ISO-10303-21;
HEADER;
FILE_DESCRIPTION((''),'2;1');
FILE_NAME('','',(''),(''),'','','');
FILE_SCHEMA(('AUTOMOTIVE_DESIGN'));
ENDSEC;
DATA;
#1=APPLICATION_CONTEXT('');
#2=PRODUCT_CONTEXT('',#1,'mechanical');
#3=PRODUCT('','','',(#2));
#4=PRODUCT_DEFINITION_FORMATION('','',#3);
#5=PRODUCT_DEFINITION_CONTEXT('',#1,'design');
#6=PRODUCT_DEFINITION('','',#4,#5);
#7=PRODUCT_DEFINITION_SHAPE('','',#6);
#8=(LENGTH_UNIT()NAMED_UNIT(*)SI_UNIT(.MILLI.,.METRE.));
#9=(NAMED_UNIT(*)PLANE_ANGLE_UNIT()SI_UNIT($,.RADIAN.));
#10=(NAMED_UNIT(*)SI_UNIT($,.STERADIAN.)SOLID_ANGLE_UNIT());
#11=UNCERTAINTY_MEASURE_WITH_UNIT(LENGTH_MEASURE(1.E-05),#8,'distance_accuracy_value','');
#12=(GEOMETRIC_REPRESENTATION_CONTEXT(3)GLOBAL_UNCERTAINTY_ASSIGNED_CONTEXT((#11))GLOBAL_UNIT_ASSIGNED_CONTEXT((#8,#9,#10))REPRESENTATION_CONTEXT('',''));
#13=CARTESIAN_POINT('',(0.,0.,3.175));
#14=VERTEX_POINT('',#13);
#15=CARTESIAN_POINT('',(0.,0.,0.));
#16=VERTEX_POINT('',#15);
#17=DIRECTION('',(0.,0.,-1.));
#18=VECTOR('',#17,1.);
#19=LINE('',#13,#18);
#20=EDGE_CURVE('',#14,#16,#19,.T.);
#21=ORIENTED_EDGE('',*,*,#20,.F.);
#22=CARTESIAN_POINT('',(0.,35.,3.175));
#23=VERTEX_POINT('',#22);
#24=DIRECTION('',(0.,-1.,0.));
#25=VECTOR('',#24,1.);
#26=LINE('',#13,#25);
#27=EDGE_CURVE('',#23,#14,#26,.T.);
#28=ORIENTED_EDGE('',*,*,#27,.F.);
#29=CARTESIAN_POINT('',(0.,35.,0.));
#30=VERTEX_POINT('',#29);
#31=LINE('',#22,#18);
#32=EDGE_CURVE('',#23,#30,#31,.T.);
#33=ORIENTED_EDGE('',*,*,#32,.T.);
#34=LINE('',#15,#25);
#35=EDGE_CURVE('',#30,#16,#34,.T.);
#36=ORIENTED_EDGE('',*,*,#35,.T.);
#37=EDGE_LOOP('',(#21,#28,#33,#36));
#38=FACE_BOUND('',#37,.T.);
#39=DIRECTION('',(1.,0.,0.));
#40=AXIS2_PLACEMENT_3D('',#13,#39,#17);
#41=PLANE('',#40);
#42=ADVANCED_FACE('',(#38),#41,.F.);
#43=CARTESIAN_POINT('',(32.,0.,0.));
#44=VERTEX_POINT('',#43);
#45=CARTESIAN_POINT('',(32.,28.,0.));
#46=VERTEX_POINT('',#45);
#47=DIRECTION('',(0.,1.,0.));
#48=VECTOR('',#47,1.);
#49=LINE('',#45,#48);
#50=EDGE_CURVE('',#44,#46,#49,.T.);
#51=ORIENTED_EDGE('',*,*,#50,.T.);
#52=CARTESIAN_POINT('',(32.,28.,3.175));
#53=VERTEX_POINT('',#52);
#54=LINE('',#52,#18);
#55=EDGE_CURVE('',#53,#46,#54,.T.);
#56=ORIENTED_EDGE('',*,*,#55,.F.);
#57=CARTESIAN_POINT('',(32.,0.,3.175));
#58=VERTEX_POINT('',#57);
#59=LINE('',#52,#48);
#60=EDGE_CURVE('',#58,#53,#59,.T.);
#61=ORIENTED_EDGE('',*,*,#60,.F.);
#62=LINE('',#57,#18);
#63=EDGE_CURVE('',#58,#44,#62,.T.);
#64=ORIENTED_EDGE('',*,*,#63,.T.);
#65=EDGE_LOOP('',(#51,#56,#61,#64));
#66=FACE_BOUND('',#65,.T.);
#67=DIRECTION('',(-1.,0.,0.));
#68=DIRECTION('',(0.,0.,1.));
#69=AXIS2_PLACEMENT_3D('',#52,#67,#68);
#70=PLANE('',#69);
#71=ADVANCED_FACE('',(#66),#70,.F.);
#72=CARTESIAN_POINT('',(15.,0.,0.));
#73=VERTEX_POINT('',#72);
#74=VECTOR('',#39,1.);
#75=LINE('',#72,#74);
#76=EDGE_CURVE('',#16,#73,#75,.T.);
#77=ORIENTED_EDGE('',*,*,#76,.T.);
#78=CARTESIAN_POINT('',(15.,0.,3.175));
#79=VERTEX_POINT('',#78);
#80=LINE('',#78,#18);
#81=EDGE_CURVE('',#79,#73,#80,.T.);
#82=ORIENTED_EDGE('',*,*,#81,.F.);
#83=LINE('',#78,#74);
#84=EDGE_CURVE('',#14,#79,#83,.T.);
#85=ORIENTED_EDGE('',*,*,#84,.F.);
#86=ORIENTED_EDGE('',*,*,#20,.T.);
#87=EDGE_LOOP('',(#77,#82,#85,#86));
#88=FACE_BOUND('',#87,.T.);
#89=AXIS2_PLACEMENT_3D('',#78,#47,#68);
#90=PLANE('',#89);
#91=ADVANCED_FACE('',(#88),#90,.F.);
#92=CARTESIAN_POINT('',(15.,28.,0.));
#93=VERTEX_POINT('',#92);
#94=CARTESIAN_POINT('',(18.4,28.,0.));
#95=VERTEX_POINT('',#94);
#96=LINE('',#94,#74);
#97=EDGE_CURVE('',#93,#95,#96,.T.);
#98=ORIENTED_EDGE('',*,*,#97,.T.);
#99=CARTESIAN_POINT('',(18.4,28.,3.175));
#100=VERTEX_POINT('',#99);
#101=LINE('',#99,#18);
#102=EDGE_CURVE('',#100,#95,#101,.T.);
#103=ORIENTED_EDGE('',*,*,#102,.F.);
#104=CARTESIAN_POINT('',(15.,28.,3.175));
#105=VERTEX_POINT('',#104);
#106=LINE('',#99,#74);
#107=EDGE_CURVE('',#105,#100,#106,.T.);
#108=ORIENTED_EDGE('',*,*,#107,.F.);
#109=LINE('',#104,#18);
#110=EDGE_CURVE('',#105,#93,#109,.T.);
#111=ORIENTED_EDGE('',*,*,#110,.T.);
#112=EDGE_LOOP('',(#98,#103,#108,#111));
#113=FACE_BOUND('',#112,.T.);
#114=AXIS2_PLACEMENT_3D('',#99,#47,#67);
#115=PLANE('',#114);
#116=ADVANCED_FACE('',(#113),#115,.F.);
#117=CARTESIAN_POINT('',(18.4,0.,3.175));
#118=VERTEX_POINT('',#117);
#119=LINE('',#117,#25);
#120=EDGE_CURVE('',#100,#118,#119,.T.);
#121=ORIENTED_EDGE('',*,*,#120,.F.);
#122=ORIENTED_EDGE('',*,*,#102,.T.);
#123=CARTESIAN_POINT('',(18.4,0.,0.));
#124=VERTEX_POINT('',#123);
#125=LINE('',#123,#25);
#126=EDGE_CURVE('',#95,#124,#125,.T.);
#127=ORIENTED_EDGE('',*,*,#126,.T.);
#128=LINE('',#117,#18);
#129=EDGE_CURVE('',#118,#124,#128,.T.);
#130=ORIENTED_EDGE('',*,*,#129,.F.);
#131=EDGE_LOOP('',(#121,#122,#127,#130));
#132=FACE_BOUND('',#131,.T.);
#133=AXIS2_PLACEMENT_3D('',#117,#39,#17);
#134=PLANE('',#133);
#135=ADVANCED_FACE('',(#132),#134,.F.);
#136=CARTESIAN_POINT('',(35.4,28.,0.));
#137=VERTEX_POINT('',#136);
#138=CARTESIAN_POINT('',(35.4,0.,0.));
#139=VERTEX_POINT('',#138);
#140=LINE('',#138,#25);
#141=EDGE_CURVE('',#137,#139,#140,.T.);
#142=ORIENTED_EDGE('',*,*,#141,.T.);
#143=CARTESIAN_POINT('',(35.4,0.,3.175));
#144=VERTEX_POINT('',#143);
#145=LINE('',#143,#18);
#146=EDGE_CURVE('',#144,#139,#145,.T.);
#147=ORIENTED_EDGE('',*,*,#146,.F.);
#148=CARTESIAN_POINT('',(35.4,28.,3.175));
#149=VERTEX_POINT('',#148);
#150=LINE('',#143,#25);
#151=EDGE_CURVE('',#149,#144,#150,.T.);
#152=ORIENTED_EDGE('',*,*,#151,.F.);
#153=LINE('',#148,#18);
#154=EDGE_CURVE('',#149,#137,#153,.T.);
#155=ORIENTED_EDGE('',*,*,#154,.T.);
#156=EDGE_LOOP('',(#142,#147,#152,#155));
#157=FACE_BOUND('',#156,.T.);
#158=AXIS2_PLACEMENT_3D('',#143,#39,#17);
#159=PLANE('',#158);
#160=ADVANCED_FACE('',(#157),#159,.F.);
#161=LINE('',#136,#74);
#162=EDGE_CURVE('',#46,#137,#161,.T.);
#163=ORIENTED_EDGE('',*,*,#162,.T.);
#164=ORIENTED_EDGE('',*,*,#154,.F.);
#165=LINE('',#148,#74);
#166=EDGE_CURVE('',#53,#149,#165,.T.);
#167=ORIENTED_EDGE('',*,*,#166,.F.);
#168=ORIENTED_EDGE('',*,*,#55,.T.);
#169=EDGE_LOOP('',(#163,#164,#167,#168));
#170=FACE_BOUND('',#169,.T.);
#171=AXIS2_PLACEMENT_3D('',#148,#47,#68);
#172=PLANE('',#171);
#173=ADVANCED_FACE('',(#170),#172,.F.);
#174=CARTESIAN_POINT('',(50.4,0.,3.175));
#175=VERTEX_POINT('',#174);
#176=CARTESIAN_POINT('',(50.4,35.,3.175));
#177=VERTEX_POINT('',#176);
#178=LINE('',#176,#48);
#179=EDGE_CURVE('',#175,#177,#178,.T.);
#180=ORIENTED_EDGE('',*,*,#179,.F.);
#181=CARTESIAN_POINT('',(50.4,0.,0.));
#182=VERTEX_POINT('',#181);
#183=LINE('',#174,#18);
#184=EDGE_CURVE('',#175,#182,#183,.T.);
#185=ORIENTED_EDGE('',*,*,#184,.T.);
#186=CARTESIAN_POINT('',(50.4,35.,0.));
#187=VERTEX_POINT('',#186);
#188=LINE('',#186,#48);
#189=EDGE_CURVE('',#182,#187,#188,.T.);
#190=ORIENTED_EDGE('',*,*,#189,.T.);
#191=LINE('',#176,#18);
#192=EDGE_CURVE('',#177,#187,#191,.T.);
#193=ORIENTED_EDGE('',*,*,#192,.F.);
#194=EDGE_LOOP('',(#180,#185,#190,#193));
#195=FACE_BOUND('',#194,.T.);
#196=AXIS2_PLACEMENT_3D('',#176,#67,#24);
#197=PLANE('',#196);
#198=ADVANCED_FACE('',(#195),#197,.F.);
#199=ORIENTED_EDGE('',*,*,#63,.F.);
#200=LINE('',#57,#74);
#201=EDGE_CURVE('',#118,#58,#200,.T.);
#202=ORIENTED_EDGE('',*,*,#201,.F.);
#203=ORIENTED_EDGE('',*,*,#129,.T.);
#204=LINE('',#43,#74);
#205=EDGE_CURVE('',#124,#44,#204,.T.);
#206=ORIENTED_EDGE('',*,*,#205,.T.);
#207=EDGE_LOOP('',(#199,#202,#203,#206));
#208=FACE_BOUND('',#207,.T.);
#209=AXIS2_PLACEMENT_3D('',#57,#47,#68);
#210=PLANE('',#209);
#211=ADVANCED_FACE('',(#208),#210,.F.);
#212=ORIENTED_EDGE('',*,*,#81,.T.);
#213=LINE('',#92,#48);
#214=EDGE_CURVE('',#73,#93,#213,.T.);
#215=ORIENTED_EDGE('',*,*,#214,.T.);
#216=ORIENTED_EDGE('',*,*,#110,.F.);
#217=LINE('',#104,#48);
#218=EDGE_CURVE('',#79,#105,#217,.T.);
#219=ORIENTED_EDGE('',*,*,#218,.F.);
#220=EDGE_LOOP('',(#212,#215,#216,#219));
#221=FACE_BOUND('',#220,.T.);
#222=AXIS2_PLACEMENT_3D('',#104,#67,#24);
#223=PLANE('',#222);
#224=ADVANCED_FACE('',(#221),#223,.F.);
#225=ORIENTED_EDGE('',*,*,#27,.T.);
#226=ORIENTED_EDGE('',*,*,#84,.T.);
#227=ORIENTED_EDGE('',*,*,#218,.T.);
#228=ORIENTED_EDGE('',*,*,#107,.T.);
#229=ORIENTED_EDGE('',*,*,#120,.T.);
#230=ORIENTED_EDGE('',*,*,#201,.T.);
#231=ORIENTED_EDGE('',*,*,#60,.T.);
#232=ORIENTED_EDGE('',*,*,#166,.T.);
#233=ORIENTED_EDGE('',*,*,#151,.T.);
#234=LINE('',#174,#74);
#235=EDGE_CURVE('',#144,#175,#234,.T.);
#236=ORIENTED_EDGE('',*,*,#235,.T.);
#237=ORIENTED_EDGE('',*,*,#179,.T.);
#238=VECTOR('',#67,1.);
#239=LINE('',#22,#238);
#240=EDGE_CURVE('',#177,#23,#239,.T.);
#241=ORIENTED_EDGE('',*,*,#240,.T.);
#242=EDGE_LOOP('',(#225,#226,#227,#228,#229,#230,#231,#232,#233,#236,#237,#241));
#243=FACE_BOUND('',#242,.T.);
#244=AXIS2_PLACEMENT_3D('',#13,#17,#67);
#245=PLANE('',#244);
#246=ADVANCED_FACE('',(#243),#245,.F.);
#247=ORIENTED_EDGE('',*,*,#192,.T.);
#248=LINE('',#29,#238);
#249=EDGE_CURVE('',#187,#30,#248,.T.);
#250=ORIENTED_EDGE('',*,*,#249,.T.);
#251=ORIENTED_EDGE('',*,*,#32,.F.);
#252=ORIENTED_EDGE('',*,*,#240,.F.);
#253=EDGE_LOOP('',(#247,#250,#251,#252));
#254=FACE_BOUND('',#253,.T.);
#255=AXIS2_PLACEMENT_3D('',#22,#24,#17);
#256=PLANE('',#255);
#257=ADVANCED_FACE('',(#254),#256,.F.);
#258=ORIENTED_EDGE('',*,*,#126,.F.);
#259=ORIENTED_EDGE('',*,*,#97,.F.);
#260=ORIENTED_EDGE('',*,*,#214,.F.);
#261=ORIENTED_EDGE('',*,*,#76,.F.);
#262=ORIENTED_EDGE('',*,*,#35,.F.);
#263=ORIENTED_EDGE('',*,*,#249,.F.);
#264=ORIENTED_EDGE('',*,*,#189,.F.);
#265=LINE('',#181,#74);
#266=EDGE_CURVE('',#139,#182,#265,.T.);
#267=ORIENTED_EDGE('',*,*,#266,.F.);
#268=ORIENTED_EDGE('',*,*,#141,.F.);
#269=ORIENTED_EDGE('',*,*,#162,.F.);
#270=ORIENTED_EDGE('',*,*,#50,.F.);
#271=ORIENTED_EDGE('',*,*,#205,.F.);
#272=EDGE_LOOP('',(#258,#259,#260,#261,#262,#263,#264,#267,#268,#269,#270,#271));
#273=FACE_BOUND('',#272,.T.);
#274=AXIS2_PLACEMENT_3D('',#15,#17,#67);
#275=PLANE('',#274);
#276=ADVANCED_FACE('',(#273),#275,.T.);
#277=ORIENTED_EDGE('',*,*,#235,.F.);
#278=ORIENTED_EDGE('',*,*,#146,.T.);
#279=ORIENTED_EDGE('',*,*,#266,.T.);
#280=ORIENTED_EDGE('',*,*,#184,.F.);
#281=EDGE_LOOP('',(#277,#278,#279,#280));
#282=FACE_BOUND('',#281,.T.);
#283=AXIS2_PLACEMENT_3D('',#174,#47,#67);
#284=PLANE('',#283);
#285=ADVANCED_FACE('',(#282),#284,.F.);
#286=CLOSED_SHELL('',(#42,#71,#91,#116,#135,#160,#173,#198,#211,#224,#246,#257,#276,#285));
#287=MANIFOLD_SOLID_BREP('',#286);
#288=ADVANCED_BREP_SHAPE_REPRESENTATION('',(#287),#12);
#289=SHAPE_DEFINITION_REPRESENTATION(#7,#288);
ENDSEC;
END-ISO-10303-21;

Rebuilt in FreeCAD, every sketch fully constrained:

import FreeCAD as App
import Part
import Sketcher
from FreeCAD import Vector
Q = App.Units.Quantity

doc = App.newDocument("Part")
params = doc.addObject("Spreadsheet::Sheet", "Params")
for row, (alias, value) in enumerate([
    ("sketch1_width", "15 mm"),
    ("sketch1_height", "35 mm"),
    ("sketch1_height2", "28 mm"),
    ("sketch1_width2", "3.4 mm"),
    ("sketch1_width3", "13.6 mm"),
    ("pad1_length", "3.175 mm"),
], start=1):
    params.set(f"A{row}", alias)
    params.set(f"B{row}", "=" + value)
    params.setAlias(f"B{row}", alias)

body = doc.addObject("PartDesign::Body", "Body")

# Sketch on XY plane
sketch1 = body.newObject("Sketcher::SketchObject", "Sketch")
sketch1.AttachmentSupport = (doc.getObject("XY_Plane"), [""])
sketch1.MapMode = "FlatFace"
sketch1.addGeometry(Part.LineSegment(Vector(0, 35, 0), Vector(0, 0, 0)), False)
sketch1.addGeometry(Part.LineSegment(Vector(0, 0, 0), Vector(15, 0, 0)), False)
sketch1.addGeometry(Part.LineSegment(Vector(15, 0, 0), Vector(15, 28, 0)), False)
sketch1.addGeometry(Part.LineSegment(Vector(15, 28, 0), Vector(18.4, 28, 0)), False)
sketch1.addGeometry(Part.LineSegment(Vector(18.4, 28, 0), Vector(18.4, 0, 0)), False)
sketch1.addGeometry(Part.LineSegment(Vector(18.4, 0, 0), Vector(32, 0, 0)), False)
sketch1.addGeometry(Part.LineSegment(Vector(32, 0, 0), Vector(32, 28, 0)), False)
sketch1.addGeometry(Part.LineSegment(Vector(32, 28, 0), Vector(35.4, 28, 0)), False)
sketch1.addGeometry(Part.LineSegment(Vector(35.4, 28, 0), Vector(35.4, 0, 0)), False)
sketch1.addGeometry(Part.LineSegment(Vector(35.4, 0, 0), Vector(50.4, 0, 0)), False)
sketch1.addGeometry(Part.LineSegment(Vector(50.4, 0, 0), Vector(50.4, 35, 0)), False)
sketch1.addGeometry(Part.LineSegment(Vector(50.4, 35, 0), Vector(0, 35, 0)), False)
sketch1.addConstraint(Sketcher.Constraint("Coincident", 0, 2, 1, 1))
sketch1.addConstraint(Sketcher.Constraint("Coincident", 1, 2, 2, 1))
sketch1.addConstraint(Sketcher.Constraint("Coincident", 2, 2, 3, 1))
sketch1.addConstraint(Sketcher.Constraint("Coincident", 3, 2, 4, 1))
sketch1.addConstraint(Sketcher.Constraint("Coincident", 4, 2, 5, 1))
sketch1.addConstraint(Sketcher.Constraint("Coincident", 5, 2, 6, 1))
sketch1.addConstraint(Sketcher.Constraint("Coincident", 6, 2, 7, 1))
sketch1.addConstraint(Sketcher.Constraint("Coincident", 7, 2, 8, 1))
sketch1.addConstraint(Sketcher.Constraint("Coincident", 8, 2, 9, 1))
sketch1.addConstraint(Sketcher.Constraint("Coincident", 9, 2, 10, 1))
sketch1.addConstraint(Sketcher.Constraint("Coincident", 10, 2, 11, 1))
sketch1.addConstraint(Sketcher.Constraint("Coincident", 11, 2, 0, 1))
sketch1.addConstraint(Sketcher.Constraint("Vertical", 0))
sketch1.addConstraint(Sketcher.Constraint("Horizontal", 1))
sketch1.addConstraint(Sketcher.Constraint("Vertical", 2))
sketch1.addConstraint(Sketcher.Constraint("Horizontal", 3))
sketch1.addConstraint(Sketcher.Constraint("Vertical", 4))
sketch1.addConstraint(Sketcher.Constraint("Horizontal", 5))
sketch1.addConstraint(Sketcher.Constraint("Vertical", 6))
sketch1.addConstraint(Sketcher.Constraint("Horizontal", 7))
sketch1.addConstraint(Sketcher.Constraint("Vertical", 8))
sketch1.addConstraint(Sketcher.Constraint("Horizontal", 9))
sketch1.addConstraint(Sketcher.Constraint("Vertical", 10))
sketch1.addConstraint(Sketcher.Constraint("Horizontal", 11))
sketch1.addConstraint(Sketcher.Constraint("Coincident", 0, 2, -1, 1))
sketch1.addConstraint(Sketcher.Constraint("PointOnObject", 4, 2, -1))
sketch1.addConstraint(Sketcher.Constraint("PointOnObject", 8, 2, -1))
sketch1.addConstraint(Sketcher.Constraint("Horizontal", 3, 2, 6, 2))
sketch1.addConstraint(Sketcher.Constraint("Equal", 3, 7))
sketch1.addConstraint(Sketcher.Constraint("Equal", 1, 9))
sketch1.addConstraint(Sketcher.Constraint("DistanceX", 1, 1, 1, 2, Q("15 mm")))
sketch1.addConstraint(Sketcher.Constraint("DistanceY", 0, 2, 0, 1, Q("35 mm")))
sketch1.addConstraint(Sketcher.Constraint("DistanceY", 2, 1, 2, 2, Q("28 mm")))
sketch1.addConstraint(Sketcher.Constraint("DistanceX", 3, 1, 3, 2, Q("3.4 mm")))
sketch1.addConstraint(Sketcher.Constraint("DistanceX", 5, 1, 5, 2, Q("13.6 mm")))
sketch1.setExpression("Constraints[30]", "Params.sketch1_width")
sketch1.setExpression("Constraints[31]", "Params.sketch1_height")
sketch1.setExpression("Constraints[32]", "Params.sketch1_height2")
sketch1.setExpression("Constraints[33]", "Params.sketch1_width2")
sketch1.setExpression("Constraints[34]", "Params.sketch1_width3")
pad1 = body.newObject("PartDesign::Pad", "Pad")
pad1.Profile = sketch1
pad1.setExpression("Length", "Params.pad1_length")

doc.recompute()
